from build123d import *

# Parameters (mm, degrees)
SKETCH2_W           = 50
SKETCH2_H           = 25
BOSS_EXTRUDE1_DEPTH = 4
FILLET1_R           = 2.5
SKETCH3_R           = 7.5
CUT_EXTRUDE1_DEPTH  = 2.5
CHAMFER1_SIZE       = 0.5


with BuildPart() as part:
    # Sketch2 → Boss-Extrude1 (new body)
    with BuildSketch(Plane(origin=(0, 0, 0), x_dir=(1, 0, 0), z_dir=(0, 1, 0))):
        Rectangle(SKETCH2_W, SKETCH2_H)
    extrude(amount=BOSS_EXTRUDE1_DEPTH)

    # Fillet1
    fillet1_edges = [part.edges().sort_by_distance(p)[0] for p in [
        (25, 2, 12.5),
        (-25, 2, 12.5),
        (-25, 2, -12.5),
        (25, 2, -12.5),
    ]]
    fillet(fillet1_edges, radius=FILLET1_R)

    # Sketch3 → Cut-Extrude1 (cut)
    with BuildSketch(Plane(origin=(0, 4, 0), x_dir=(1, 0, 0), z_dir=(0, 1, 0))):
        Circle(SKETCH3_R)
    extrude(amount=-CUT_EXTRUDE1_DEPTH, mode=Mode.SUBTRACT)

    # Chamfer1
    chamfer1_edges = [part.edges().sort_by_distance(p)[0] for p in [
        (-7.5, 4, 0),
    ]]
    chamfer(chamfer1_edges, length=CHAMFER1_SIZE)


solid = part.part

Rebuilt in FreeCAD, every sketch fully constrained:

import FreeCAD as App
import Part
import Sketcher


def edges_at(feature, points):
    """Names of the edges that pass closest to the given points."""
    edges = feature.Shape.Edges
    near = lambda p: min(range(len(edges)), key=lambda i: edges[i].distToShape(Part.Vertex(*p))[0])
    return sorted({f"Edge{near(p) + 1}" for p in points})


def add_polygon(sketch, points):
    """Adds a closed chain of lines whose ends are joined by coincident constraints."""
    first, n = sketch.GeometryCount, len(points)
    for a, b in zip(points, points[1:] + points[:1]):
        sketch.addGeometry(Part.LineSegment(App.Vector(*a, 0), App.Vector(*b, 0)), False)
    for i in range(n):
        sketch.addConstraint(Sketcher.Constraint("Coincident", first + i, 2, first + (i + 1) % n, 1))

doc = App.newDocument("Part")
body = doc.addObject("PartDesign::Body", "Body")

sketch1 = doc.addObject("Sketcher::SketchObject", "Sketch")
body.addObject(sketch1)
sketch1.AttachmentSupport = (doc.XZ_Plane, [""])
sketch1.MapMode = "FlatFace"
add_polygon(sketch1, [(-25, -12), (-25, 12), (25, 12), (25, -12)])
sketch1.addConstraint([
    Sketcher.Constraint("Vertical", 0),
    Sketcher.Constraint("Horizontal", 1),
    Sketcher.Constraint("Vertical", 2),
    Sketcher.Constraint("Horizontal", 3),
    Sketcher.Constraint("Symmetric", 0, 2, 2, 2, -1, 1),
    Sketcher.Constraint("DistanceX", 1, 1, 1, 2, 50.0),
    Sketcher.Constraint("DistanceY", 0, 1, 0, 2, 25.0),
])
pad1 = doc.addObject("PartDesign::Pad", "Pad")
body.addObject(pad1)
pad1.Profile = sketch1
pad1.Length = 4
pad1.Reversed = True
doc.recompute()

fillet = doc.addObject("PartDesign::Fillet", "Fillet")
body.addObject(fillet)
fillet.Base = (pad1, edges_at(pad1, [
    (25, 2, 12.5),
    (-25, 2, 12.5),
    (-25, 2, -12.5),
    (25, 2, -12.5),
]))
fillet.Radius = 2.5

sketch2 = doc.addObject("Sketcher::SketchObject", "Sketch001")
body.addObject(sketch2)
sketch2.AttachmentSupport = (doc.XZ_Plane, [""])
sketch2.MapMode = "FlatFace"
sketch2.AttachmentOffset = App.Placement(App.Vector(0, 0, -4), App.Rotation())
sketch2.addGeometry(Part.Circle(App.Vector(0, 0, 0), App.Vector(0, 0, 1), 8), False)
sketch2.addConstraint([
    Sketcher.Constraint("Coincident", 0, 3, -1, 1),
    Sketcher.Constraint("Diameter", 0, 15.0),
])
pocket1 = doc.addObject("PartDesign::Pocket", "Pocket")
body.addObject(pocket1)
pocket1.Profile = sketch2
pocket1.Length = 2.5
pocket1.Reversed = True
doc.recompute()

chamfer = doc.addObject("PartDesign::Chamfer", "Chamfer")
body.addObject(chamfer)
chamfer.Base = (pocket1, edges_at(pocket1, [(-7.5, 4, 0)]))
chamfer.Size = 0.5

doc.recompute()
